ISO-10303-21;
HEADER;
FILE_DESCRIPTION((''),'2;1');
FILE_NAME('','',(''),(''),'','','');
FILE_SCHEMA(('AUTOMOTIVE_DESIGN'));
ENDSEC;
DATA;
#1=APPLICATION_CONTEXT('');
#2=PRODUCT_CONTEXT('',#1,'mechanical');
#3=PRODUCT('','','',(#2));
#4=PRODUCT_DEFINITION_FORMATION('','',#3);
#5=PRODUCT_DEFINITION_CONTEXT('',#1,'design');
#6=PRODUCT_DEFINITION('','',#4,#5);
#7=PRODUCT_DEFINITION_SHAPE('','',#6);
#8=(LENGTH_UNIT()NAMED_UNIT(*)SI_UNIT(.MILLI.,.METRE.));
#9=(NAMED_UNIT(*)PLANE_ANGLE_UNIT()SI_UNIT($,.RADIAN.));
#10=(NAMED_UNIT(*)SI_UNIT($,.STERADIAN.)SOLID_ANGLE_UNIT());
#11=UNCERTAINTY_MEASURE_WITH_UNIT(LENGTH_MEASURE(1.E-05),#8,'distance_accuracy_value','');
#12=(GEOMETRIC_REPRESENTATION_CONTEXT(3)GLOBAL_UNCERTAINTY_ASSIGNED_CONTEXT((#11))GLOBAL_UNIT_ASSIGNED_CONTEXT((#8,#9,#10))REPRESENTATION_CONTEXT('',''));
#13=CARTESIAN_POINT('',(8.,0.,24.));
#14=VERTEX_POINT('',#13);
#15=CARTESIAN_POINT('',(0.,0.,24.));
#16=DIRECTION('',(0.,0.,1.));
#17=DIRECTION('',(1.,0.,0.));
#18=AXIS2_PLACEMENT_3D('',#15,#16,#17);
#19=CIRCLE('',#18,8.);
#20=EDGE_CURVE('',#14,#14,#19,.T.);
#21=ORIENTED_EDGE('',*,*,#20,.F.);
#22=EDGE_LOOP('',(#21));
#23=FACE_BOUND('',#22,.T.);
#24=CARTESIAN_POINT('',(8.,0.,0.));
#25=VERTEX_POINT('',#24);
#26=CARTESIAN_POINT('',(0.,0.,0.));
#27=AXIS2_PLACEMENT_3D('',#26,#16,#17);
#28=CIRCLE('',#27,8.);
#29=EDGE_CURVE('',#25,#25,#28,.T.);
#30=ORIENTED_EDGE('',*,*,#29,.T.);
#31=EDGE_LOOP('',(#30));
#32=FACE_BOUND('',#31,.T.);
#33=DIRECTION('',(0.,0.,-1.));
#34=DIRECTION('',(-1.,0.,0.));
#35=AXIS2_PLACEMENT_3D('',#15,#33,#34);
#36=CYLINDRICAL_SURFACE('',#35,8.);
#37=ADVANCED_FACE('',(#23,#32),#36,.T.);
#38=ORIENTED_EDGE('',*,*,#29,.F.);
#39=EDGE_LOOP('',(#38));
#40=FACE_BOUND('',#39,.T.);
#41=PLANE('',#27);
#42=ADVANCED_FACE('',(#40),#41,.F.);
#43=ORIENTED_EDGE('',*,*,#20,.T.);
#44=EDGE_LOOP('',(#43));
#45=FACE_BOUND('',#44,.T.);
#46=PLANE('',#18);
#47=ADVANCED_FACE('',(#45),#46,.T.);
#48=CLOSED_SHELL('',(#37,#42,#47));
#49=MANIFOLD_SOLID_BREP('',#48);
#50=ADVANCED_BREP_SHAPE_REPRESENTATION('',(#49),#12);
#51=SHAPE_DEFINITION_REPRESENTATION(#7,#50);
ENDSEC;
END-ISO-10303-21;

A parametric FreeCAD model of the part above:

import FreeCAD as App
import Part
import Sketcher
from FreeCAD import Vector

doc = App.newDocument("Part")
params = doc.addObject("Spreadsheet::Sheet", "Params")
for row, (alias, value) in enumerate([
    ("sketch1_diameter", "16 mm"),
    ("pad1_length", "24 mm"),
], start=1):
    params.set(f"A{row}", alias)
    params.set(f"B{row}", "=" + value)
    params.setAlias(f"B{row}", alias)

body = doc.addObject("PartDesign::Body", "Body")

sketch1 = body.newObject("Sketcher::SketchObject", "Sketch")
sketch1.AttachmentSupport = (doc.getObject("XY_Plane"), [""])
sketch1.MapMode = "FlatFace"
sketch1.addGeometry(Part.Circle(Vector(0, 0, 0), Vector(0, 0, 1), 8), False)
sketch1.addConstraint([
    Sketcher.Constraint("Coincident", 0, 3, -1, 1),
    Sketcher.Constraint("Diameter", 0, 16.0),
])
sketch1.setExpression("Constraints[1]", "Params.sketch1_diameter")
pad1 = body.newObject("PartDesign::Pad", "Pad")
pad1.Profile = sketch1
pad1.setExpression("Length", "Params.pad1_length")

doc.recompute()
